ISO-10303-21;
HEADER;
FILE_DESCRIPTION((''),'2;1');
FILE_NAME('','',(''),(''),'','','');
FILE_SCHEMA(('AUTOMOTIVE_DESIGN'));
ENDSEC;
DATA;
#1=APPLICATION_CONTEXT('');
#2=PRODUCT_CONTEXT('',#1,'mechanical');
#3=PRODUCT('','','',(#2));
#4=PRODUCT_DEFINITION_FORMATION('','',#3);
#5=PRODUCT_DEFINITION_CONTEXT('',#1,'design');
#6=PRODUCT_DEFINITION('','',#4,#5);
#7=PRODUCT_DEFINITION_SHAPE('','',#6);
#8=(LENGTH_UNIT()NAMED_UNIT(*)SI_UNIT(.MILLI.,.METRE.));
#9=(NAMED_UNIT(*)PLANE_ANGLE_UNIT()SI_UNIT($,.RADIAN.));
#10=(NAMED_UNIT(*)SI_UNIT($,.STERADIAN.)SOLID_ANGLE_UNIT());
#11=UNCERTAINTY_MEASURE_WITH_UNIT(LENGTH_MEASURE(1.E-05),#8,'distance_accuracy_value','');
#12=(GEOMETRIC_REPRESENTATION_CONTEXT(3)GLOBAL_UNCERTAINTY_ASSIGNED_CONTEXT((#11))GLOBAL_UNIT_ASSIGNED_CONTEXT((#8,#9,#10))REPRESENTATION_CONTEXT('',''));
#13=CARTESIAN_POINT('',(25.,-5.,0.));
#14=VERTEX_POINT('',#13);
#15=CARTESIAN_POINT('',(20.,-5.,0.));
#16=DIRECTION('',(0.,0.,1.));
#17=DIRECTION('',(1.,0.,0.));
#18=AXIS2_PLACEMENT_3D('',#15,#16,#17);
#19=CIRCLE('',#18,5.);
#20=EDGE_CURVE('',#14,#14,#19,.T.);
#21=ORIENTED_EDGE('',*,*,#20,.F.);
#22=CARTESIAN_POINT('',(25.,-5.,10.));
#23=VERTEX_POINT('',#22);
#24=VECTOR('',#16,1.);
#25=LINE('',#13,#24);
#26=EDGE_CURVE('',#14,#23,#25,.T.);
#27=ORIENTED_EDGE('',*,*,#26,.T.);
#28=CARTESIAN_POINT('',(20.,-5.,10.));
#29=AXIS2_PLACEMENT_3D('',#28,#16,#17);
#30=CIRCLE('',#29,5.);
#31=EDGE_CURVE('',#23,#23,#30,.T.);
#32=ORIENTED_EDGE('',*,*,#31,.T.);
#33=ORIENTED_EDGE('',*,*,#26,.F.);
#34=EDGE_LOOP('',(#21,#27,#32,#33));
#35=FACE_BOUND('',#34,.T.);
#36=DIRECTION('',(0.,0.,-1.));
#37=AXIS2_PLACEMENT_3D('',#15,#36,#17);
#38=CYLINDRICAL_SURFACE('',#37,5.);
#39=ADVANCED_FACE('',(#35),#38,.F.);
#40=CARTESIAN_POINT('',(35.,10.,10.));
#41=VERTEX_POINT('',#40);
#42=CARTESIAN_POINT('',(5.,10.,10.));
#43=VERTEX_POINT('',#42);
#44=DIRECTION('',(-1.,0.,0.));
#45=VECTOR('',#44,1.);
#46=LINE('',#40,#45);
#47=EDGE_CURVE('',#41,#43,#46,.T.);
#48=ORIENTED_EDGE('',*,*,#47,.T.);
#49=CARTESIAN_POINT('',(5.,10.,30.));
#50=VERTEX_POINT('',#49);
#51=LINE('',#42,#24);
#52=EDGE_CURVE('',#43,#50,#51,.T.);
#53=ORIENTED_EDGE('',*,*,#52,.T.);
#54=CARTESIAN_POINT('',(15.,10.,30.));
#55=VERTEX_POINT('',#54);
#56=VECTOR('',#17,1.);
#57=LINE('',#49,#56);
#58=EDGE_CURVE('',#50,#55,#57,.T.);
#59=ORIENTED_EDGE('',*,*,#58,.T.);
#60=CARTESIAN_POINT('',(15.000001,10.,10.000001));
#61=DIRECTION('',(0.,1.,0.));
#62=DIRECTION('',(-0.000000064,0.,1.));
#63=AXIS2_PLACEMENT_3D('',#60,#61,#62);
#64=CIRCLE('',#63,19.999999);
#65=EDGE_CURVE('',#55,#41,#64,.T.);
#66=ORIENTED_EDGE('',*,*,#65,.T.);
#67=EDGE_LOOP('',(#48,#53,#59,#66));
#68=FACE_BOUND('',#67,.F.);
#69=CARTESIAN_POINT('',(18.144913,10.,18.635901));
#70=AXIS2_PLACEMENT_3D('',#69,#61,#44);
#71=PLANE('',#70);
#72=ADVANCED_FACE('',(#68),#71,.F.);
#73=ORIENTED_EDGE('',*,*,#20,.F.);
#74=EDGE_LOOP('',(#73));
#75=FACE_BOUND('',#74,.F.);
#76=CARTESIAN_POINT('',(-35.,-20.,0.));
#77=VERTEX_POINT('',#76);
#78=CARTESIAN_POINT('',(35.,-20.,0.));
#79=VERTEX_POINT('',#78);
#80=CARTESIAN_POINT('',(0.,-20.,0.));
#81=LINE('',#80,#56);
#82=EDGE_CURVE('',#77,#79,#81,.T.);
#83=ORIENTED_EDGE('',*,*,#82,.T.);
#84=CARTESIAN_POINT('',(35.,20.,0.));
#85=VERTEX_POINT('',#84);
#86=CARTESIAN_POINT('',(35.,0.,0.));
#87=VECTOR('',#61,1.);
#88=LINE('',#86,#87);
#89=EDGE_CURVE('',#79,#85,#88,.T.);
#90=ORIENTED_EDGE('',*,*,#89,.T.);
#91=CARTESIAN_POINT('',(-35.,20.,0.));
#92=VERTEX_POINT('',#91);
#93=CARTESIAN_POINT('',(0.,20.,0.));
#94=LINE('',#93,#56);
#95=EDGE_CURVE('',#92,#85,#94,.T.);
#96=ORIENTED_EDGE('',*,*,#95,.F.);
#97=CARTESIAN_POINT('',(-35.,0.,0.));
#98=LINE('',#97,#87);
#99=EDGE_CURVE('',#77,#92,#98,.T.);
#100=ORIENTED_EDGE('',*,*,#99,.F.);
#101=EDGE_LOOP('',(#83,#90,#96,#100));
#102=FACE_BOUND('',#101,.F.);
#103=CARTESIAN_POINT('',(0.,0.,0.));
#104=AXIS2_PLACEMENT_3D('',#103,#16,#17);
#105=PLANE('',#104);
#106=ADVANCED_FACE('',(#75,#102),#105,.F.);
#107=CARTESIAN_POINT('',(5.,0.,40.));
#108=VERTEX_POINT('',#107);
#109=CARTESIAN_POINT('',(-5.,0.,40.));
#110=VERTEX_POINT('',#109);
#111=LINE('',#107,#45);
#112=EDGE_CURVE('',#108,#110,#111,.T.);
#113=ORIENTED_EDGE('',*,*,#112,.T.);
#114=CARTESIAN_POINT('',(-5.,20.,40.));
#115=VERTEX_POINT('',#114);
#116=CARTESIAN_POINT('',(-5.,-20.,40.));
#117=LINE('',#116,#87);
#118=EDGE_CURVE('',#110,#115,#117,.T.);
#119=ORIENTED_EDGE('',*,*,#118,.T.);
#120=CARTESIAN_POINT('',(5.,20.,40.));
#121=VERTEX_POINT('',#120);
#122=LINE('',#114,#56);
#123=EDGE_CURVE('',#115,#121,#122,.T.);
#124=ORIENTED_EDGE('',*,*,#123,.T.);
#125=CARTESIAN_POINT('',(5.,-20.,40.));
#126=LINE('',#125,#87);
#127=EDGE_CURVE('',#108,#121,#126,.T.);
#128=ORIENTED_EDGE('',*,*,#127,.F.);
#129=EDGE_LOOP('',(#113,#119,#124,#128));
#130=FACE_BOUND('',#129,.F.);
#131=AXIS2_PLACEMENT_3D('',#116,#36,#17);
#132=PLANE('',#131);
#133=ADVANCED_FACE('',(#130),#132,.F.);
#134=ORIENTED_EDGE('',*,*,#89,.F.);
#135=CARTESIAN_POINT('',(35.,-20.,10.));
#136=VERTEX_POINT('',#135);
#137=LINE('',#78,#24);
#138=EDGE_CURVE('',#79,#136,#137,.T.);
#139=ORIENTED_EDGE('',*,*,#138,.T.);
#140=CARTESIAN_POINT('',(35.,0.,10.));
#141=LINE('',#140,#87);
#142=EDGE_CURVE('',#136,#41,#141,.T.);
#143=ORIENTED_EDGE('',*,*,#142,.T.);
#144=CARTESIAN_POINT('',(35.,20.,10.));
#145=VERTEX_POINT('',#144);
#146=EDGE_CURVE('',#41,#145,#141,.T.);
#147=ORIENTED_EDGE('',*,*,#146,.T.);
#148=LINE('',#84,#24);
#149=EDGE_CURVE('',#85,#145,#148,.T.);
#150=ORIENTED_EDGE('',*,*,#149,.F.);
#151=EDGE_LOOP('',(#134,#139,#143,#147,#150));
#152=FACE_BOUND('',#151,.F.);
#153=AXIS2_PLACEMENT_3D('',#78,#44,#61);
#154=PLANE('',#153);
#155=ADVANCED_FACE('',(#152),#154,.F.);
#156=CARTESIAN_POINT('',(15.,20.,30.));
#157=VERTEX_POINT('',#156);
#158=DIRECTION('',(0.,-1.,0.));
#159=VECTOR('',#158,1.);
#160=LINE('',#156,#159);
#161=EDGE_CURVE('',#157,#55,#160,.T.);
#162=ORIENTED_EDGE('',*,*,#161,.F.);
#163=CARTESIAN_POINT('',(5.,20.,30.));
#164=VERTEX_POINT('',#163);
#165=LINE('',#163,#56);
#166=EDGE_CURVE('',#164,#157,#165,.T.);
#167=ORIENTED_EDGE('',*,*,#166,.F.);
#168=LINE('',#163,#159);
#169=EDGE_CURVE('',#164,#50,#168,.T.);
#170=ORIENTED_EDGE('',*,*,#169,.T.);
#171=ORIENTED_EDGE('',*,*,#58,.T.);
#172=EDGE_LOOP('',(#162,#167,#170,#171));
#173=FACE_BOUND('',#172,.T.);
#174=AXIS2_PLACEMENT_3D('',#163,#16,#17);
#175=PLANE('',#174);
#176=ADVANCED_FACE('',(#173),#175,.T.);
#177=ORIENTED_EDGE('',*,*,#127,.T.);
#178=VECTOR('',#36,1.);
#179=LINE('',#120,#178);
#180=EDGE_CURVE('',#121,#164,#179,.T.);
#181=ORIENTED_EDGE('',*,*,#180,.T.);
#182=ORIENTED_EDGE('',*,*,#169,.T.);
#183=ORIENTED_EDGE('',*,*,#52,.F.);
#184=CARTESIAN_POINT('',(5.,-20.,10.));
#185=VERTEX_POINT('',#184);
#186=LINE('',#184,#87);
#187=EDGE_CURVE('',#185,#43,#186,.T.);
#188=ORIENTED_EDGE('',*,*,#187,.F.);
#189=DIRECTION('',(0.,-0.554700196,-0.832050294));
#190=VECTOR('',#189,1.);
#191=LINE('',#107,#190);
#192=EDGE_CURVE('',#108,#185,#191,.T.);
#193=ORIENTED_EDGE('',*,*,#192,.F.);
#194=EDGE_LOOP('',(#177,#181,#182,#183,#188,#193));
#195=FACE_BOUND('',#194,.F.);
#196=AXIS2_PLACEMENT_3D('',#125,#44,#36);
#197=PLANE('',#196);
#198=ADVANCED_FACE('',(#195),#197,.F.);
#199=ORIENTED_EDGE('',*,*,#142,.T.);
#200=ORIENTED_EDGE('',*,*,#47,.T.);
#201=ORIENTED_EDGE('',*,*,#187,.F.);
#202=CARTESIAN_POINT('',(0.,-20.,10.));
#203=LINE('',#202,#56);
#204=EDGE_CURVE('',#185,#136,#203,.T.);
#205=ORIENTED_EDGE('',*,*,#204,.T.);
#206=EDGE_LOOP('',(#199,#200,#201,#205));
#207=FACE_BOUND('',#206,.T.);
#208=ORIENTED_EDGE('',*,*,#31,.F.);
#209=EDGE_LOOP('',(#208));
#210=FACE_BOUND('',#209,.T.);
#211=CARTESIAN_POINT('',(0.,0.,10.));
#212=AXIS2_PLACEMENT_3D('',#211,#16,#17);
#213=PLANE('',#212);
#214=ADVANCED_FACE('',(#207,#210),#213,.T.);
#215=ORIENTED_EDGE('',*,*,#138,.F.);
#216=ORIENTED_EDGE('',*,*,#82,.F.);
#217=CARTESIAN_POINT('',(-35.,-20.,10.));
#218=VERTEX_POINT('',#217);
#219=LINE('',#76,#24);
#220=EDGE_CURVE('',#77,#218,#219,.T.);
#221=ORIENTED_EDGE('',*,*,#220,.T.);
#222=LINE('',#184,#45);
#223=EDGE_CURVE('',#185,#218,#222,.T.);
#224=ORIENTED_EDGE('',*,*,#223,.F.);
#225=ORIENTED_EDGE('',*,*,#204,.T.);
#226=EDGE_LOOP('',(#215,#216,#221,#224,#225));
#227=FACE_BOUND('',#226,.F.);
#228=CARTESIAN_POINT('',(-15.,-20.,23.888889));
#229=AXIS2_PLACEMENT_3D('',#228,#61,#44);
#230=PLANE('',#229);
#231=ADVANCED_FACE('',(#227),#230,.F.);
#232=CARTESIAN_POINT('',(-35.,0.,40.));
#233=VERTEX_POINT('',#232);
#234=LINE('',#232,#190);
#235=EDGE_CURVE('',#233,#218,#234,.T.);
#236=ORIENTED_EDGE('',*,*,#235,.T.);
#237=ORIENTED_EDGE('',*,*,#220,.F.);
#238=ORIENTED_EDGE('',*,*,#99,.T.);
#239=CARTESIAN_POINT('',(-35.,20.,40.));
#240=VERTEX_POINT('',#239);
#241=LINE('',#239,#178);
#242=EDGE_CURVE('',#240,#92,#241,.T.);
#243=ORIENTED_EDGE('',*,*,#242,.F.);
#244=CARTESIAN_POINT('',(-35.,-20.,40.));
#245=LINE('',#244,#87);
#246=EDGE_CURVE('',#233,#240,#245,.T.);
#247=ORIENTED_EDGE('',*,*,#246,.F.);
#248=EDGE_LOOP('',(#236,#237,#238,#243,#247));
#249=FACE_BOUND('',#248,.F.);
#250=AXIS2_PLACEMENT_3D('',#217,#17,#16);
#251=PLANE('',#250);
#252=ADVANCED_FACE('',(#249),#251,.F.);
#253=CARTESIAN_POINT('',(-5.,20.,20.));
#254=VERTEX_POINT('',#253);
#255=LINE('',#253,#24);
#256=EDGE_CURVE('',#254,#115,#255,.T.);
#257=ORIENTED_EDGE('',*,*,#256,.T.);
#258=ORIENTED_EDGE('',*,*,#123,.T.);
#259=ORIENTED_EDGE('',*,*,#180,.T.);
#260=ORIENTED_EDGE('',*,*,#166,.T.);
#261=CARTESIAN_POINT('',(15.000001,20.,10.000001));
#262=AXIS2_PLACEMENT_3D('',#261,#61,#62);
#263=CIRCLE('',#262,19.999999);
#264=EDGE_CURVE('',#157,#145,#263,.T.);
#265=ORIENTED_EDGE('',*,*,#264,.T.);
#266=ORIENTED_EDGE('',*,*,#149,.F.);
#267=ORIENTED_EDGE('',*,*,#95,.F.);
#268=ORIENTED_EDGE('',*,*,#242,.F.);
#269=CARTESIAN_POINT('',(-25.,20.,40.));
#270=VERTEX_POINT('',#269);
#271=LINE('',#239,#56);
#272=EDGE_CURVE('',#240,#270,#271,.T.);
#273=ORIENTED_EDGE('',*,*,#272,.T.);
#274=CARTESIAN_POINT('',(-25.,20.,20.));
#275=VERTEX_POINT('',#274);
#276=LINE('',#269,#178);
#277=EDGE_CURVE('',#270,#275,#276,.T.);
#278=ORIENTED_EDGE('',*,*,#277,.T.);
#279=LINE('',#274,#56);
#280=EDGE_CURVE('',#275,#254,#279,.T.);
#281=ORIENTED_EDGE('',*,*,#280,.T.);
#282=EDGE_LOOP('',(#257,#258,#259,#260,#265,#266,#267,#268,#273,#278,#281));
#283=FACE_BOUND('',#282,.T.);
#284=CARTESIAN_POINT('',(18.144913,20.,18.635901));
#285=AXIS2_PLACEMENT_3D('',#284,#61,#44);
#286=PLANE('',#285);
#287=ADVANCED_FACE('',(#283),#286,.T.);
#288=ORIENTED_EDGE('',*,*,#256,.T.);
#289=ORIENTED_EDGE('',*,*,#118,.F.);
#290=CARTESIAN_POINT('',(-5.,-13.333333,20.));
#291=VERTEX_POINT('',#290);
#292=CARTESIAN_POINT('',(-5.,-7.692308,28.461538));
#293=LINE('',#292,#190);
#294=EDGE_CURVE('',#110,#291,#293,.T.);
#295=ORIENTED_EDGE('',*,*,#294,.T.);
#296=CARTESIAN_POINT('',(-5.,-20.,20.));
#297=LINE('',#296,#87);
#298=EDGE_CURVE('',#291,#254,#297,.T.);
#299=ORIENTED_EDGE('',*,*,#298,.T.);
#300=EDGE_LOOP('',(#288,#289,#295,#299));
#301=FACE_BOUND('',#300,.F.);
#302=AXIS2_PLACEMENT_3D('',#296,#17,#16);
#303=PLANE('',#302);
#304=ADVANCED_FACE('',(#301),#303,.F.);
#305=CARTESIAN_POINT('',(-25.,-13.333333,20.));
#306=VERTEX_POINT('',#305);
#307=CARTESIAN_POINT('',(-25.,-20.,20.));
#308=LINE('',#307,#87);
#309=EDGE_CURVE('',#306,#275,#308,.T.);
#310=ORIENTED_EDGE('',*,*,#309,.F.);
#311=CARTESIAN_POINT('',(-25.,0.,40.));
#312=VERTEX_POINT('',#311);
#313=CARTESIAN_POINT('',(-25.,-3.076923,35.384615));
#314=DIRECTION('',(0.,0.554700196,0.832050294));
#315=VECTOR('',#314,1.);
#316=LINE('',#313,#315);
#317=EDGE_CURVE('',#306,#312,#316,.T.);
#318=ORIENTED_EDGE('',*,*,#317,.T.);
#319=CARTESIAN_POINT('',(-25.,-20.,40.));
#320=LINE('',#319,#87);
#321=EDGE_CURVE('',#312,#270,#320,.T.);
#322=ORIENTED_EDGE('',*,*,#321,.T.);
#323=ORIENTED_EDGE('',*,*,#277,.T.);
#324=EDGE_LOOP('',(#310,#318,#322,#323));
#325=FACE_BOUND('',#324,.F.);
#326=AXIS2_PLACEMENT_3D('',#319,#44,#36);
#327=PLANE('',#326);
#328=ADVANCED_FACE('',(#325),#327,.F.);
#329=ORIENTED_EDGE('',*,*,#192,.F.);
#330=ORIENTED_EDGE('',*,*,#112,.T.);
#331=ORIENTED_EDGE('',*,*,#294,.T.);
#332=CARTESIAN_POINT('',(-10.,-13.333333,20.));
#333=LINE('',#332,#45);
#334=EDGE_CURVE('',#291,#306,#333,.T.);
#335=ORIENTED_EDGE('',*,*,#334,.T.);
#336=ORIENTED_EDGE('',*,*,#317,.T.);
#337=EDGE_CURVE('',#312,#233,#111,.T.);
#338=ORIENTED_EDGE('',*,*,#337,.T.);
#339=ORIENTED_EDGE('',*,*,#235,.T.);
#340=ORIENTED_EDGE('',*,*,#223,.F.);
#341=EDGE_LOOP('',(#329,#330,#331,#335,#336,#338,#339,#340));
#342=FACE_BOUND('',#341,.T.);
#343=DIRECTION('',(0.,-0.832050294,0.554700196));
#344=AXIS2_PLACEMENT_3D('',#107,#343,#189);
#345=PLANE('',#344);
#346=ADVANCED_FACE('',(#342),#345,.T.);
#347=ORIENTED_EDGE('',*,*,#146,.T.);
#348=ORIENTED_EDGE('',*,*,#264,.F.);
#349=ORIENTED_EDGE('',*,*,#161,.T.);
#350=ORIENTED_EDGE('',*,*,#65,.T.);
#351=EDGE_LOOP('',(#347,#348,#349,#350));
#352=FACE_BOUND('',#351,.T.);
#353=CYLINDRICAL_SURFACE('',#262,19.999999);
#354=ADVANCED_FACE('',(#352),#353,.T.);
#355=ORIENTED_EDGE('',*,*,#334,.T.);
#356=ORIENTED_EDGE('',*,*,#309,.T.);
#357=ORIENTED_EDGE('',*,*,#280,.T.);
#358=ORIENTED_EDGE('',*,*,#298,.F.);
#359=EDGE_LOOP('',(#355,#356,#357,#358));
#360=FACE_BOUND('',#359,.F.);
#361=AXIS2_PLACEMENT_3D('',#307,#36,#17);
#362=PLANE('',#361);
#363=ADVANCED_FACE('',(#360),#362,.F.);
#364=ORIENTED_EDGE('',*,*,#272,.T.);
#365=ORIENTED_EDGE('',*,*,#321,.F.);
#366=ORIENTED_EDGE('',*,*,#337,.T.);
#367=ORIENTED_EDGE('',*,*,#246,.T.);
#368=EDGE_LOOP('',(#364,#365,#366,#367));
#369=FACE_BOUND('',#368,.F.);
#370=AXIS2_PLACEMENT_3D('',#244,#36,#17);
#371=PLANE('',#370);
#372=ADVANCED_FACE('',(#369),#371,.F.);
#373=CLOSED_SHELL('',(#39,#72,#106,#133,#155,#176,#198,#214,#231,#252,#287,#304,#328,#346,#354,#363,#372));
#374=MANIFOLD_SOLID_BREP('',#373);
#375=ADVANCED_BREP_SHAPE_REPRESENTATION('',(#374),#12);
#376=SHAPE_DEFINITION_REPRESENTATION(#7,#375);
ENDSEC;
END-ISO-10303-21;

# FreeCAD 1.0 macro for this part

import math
import FreeCAD as App
import Part
import Sketcher

V = App.Vector

doc = App.newDocument("Part")
body = doc.addObject("PartDesign::Body", "Body")

# Sketch on XY plane
sketch1 = doc.addObject("Sketcher::SketchObject", "Sketch")
body.addObject(sketch1)
sketch1.AttachmentSupport = (doc.XY_Plane, [""])
sketch1.MapMode = "FlatFace"
sketch1.addGeometry(Part.LineSegment(V(-35, 20, 0), V(-35, -20, 0)), False)
sketch1.addGeometry(Part.LineSegment(V(-35, -20, 0), V(35, -20, 0)), False)
sketch1.addGeometry(Part.LineSegment(V(35, -20, 0), V(35, 20, 0)), False)
sketch1.addGeometry(Part.LineSegment(V(35, 20, 0), V(-35, 20, 0)), False)
sketch1.addGeometry(Part.Circle(V(20, -5, 0), V(0, 0, 1), 5), False)
sketch1.addConstraint(Sketcher.Constraint("Coincident", 0, 2, 1, 1))
sketch1.addConstraint(Sketcher.Constraint("Coincident", 1, 2, 2, 1))
sketch1.addConstraint(Sketcher.Constraint("Coincident", 2, 2, 3, 1))
sketch1.addConstraint(Sketcher.Constraint("Coincident", 3, 2, 0, 1))
sketch1.addConstraint(Sketcher.Constraint("Vertical", 0))
sketch1.addConstraint(Sketcher.Constraint("Horizontal", 1))
sketch1.addConstraint(Sketcher.Constraint("Vertical", 2))
sketch1.addConstraint(Sketcher.Constraint("Horizontal", 3))
sketch1.addConstraint(Sketcher.Constraint("Symmetric", 0, 2, 2, 2, -1, 1))
sketch1.addConstraint(Sketcher.Constraint("Diameter", 4, 10.0))
sketch1.addConstraint(Sketcher.Constraint("DistanceX", 1, 1, 1, 2, 70.0))
sketch1.addConstraint(Sketcher.Constraint("DistanceY", 0, 2, 0, 1, 40.0))
sketch1.addConstraint(Sketcher.Constraint("DistanceX", -1, 1, 4, 3, 20.0))
sketch1.addConstraint(Sketcher.Constraint("DistanceY", 4, 3, -1, 1, 5.0))
pad1 = doc.addObject("PartDesign::Pad", "Pad")
body.addObject(pad1)
pad1.Profile = sketch1
pad1.Length = 10

# Sketch on XZ plane
sketch2 = doc.addObject("Sketcher::SketchObject", "Sketch001")
body.addObject(sketch2)
sketch2.AttachmentSupport = (doc.XZ_Plane, [""])
sketch2.MapMode = "FlatFace"
sketch2.AttachmentOffset = App.Placement(V(0, 0, 20), App.Rotation())
sketch2.addGeometry(Part.LineSegment(V(-35, 40, 0), V(-35, 10, 0)), False)
sketch2.addGeometry(Part.LineSegment(V(-35, 10, 0), V(5, 10, 0)), False)
sketch2.addGeometry(Part.LineSegment(V(5, 10, 0), V(5, 40, 0)), False)
sketch2.addGeometry(Part.LineSegment(V(5, 40, 0), V(-5, 40, 0)), False)
sketch2.addGeometry(Part.LineSegment(V(-5, 40, 0), V(-5, 20, 0)), False)
sketch2.addGeometry(Part.LineSegment(V(-5, 20, 0), V(-25, 20, 0)), False)
sketch2.addGeometry(Part.LineSegment(V(-25, 20, 0), V(-25, 40, 0)), False)
sketch2.addGeometry(Part.LineSegment(V(-25, 40, 0), V(-35, 40, 0)), False)
sketch2.addConstraint(Sketcher.Constraint("Coincident", 0, 2, 1, 1))
sketch2.addConstraint(Sketcher.Constraint("Coincident", 1, 2, 2, 1))
sketch2.addConstraint(Sketcher.Constraint("Coincident", 2, 2, 3, 1))
sketch2.addConstraint(Sketcher.Constraint("Coincident", 3, 2, 4, 1))
sketch2.addConstraint(Sketcher.Constraint("Coincident", 4, 2, 5, 1))
sketch2.addConstraint(Sketcher.Constraint("Coincident", 5, 2, 6, 1))
sketch2.addConstraint(Sketcher.Constraint("Coincident", 6, 2, 7, 1))
sketch2.addConstraint(Sketcher.Constraint("Coincident", 7, 2, 0, 1))
sketch2.addConstraint(Sketcher.Constraint("Vertical", 0))
sketch2.addConstraint(Sketcher.Constraint("Horizontal", 1))
sketch2.addConstraint(Sketcher.Constraint("Vertical", 2))
sketch2.addConstraint(Sketcher.Constraint("Horizontal", 3))
sketch2.addConstraint(Sketcher.Constraint("Vertical", 4))
sketch2.addConstraint(Sketcher.Constraint("Horizontal", 5))
sketch2.addConstraint(Sketcher.Constraint("Vertical", 6))
sketch2.addConstraint(Sketcher.Constraint("Horizontal", 7))
sketch2.addConstraint(Sketcher.Constraint("Horizontal", 3, 2, 6, 2))
sketch2.addConstraint(Sketcher.Constraint("Equal", 3, 7))
sketch2.addConstraint(Sketcher.Constraint("Equal", 5, 4))
sketch2.addConstraint(Sketcher.Constraint("DistanceX", 1, 1, 1, 2, 40.0))
sketch2.addConstraint(Sketcher.Constraint("DistanceX", 3, 2, 3, 1, 10.0))
sketch2.addConstraint(Sketcher.Constraint("DistanceY", 0, 2, 0, 1, 30.0))
sketch2.addConstraint(Sketcher.Constraint("DistanceX", 0, 2, -1, 1, 35.0))
sketch2.addConstraint(Sketcher.Constraint("DistanceY", -1, 1, 0, 2, 10.0))
pad2 = doc.addObject("PartDesign::Pad", "Pad001")
body.addObject(pad2)
pad2.Profile = sketch2
pad2.Length = 40
pad2.Reversed = True

# Sketch on YZ plane
sketch3 = doc.addObject("Sketcher::SketchObject", "Sketch002")
body.addObject(sketch3)
sketch3.AttachmentSupport = (doc.YZ_Plane, [""])
sketch3.MapMode = "FlatFace"
sketch3.AttachmentOffset = App.Placement(V(0, 0, 5), App.Rotation())
sketch3.addGeometry(Part.LineSegment(V(-20, 10, 0), V(0, 40, 0)), False)
sketch3.addGeometry(Part.LineSegment(V(0, 40, 0), V(-20, 40, 0)), False)
sketch3.addGeometry(Part.LineSegment(V(-20, 40, 0), V(-20, 10, 0)), False)
sketch3.addConstraint(Sketcher.Constraint("Coincident", 0, 2, 1, 1))
sketch3.addConstraint(Sketcher.Constraint("Coincident", 1, 2, 2, 1))
sketch3.addConstraint(Sketcher.Constraint("Coincident", 2, 2, 0, 1))
sketch3.addConstraint(Sketcher.Constraint("Horizontal", 1))
sketch3.addConstraint(Sketcher.Constraint("Vertical", 2))
sketch3.addConstraint(Sketcher.Constraint("PointOnObject", 0, 2, -2))
sketch3.addConstraint(Sketcher.Constraint("DistanceX", 1, 2, 1, 1, 20.0))
sketch3.addConstraint(Sketcher.Constraint("DistanceY", 2, 2, 2, 1, 30.0))
sketch3.addConstraint(Sketcher.Constraint("DistanceY", -1, 1, 0, 2, 40.0))
pocket1 = doc.addObject("PartDesign::Pocket", "Pocket")
body.addObject(pocket1)
pocket1.Profile = sketch3
pocket1.Length = 40

# Sketch on XZ plane
sketch4 = doc.addObject("Sketcher::SketchObject", "Sketch003")
body.addObject(sketch4)
sketch4.AttachmentSupport = (doc.XZ_Plane, [""])
sketch4.MapMode = "FlatFace"
sketch4.AttachmentOffset = App.Placement(V(0, 0, -20), App.Rotation())
sketch4.addGeometry(Part.LineSegment(V(5, 10, 0), V(5, 30, 0)), False)
sketch4.addGeometry(Part.LineSegment(V(5, 30, 0), V(15, 30, 0)), False)
sketch4.addGeometry(Part.ArcOfCircle(Part.Circle(V(15, 10, 0), V(0, 0, 1), 20), math.radians(0), math.radians(90)), False)
sketch4.addGeometry(Part.LineSegment(V(35, 10, 0), V(5, 10, 0)), False)
sketch4.addConstraint(Sketcher.Constraint("Coincident", 0, 2, 1, 1))
sketch4.addConstraint(Sketcher.Constraint("Tangent", 1, 2, 2, 2))
sketch4.addConstraint(Sketcher.Constraint("Coincident", 2, 1, 3, 1))
sketch4.addConstraint(Sketcher.Constraint("Coincident", 3, 2, 0, 1))
sketch4.addConstraint(Sketcher.Constraint("Vertical", 0))
sketch4.addConstraint(Sketcher.Constraint("Horizontal", 1))
sketch4.addConstraint(Sketcher.Constraint("Horizontal", 3))
sketch4.addConstraint(Sketcher.Constraint("Radius", 2, 19.999999))
sketch4.addConstraint(Sketcher.Constraint("DistanceX", 1, 1, 1, 2, 10.0))
sketch4.addConstraint(Sketcher.Constraint("DistanceY", 0, 1, 0, 2, 20.0))
sketch4.addConstraint(Sketcher.Constraint("DistanceX", -1, 1, 2, 3, 15.000001))
sketch4.addConstraint(Sketcher.Constraint("DistanceY", -1, 1, 2, 3, 10.000001))
pad3 = doc.addObject("PartDesign::Pad", "Pad002")
body.addObject(pad3)
pad3.Profile = sketch4
pad3.Length = 10

doc.recompute()
